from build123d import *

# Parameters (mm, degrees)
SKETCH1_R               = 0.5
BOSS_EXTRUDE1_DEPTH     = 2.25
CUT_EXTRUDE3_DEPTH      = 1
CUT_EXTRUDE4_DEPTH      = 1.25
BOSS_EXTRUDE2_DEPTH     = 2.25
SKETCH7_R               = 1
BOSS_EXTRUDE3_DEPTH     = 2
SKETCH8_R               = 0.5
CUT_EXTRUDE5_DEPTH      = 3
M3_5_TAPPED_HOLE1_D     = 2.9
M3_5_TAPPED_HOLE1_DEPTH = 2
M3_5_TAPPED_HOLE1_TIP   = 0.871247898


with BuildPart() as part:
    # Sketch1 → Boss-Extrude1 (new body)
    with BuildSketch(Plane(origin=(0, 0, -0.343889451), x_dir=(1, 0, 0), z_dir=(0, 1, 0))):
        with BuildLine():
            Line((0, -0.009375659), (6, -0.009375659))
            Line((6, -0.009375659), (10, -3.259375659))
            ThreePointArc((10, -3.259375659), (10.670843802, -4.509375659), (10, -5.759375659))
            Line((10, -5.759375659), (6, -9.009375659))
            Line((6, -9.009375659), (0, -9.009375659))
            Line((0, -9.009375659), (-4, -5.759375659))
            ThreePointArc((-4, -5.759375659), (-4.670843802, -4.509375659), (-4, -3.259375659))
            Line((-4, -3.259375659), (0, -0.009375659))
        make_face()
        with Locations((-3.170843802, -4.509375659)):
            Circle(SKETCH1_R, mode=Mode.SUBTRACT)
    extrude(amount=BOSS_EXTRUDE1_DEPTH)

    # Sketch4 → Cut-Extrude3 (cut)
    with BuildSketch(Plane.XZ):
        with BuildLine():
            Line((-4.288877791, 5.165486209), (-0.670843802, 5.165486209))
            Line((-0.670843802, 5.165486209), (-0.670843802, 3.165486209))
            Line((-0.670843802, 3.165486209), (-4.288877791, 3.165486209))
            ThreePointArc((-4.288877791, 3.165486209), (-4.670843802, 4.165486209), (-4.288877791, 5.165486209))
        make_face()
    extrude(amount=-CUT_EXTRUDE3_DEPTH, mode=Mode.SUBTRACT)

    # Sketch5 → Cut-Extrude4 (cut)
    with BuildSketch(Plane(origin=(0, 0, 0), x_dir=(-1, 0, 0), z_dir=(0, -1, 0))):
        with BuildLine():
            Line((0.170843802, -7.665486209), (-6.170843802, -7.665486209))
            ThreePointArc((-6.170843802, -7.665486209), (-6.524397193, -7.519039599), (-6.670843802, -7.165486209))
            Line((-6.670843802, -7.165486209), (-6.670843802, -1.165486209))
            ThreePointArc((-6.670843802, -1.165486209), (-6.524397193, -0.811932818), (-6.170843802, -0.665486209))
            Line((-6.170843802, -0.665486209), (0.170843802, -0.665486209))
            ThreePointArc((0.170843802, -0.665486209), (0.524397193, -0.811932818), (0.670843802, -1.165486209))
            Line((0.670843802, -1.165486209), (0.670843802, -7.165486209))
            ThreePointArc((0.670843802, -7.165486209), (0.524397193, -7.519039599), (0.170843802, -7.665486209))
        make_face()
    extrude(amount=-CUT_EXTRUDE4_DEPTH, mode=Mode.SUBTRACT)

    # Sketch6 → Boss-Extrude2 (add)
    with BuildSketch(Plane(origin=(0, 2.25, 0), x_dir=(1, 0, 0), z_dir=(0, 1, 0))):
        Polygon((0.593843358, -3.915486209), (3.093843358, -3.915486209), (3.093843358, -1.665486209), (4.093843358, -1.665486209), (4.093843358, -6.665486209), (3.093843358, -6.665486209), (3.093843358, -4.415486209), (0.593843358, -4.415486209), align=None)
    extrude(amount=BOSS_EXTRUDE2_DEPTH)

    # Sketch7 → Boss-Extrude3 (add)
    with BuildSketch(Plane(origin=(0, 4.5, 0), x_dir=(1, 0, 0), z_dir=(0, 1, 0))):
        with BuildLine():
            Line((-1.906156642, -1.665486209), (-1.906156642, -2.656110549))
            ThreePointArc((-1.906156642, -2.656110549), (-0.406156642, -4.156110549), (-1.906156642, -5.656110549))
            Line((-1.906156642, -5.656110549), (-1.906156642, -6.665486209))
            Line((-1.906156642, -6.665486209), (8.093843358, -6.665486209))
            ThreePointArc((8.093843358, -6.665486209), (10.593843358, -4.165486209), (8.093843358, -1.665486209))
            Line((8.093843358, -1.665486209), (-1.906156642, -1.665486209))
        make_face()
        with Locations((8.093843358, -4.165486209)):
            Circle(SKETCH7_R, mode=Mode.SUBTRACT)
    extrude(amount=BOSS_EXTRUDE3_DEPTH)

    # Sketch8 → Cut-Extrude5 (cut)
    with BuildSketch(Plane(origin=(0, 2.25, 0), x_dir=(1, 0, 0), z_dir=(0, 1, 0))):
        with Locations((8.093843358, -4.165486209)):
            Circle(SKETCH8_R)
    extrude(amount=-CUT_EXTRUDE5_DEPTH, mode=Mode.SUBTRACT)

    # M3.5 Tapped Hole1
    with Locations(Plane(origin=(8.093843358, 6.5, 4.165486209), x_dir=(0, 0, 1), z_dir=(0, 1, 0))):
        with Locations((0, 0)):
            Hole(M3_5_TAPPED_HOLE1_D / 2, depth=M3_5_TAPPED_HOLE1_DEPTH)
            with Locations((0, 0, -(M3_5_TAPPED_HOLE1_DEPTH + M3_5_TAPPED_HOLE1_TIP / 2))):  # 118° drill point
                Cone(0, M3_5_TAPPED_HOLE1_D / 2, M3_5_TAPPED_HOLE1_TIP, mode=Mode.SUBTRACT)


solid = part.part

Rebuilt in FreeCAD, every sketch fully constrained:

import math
import FreeCAD as App
import Part
import Sketcher
from FreeCAD import Vector
Q = App.Units.Quantity


def add_polygon(sketch, points):
    """Adds a closed chain of lines whose ends are joined by coincident constraints."""
    first, n = sketch.GeometryCount, len(points)
    for a, b in zip(points, points[1:] + points[:1]):
        sketch.addGeometry(Part.LineSegment(App.Vector(*a, 0), App.Vector(*b, 0)), False)
    for i in range(n):
        sketch.addConstraint(Sketcher.Constraint("Coincident", first + i, 2, first + (i + 1) % n, 1))

doc = App.newDocument("Part")
body = doc.addObject("PartDesign::Body", "Body")

# Sketch on XZ plane
sketch1 = body.newObject("Sketcher::SketchObject", "Sketch")
sketch1.AttachmentSupport = (doc.getObject("XZ_Plane"), [""])
sketch1.MapMode = "FlatFace"
sketch1.addGeometry([
    Part.LineSegment(Vector(6, -0.3, 0), Vector(0, -0.3, 0)),  # 0
    Part.LineSegment(Vector(0, -0.3, 0), Vector(-4, 2.9, 0)),  # 1
    Part.ArcOfCircle(Part.Circle(Vector(-3.2, 4.2, 0), Vector(0, 0, 1), 1.5), math.radians(124), math.radians(236)),  # 2
    Part.LineSegment(Vector(-4, 5.4, 0), Vector(0, 8.7, 0)),  # 3
    Part.LineSegment(Vector(0, 8.7, 0), Vector(6, 8.7, 0)),  # 4
    Part.LineSegment(Vector(6, 8.7, 0), Vector(10, 5.4, 0)),  # 5
    Part.ArcOfCircle(Part.Circle(Vector(9.2, 4.2, 0), Vector(0, 0, 1), 1.5), math.radians(-56), math.radians(56)),  # 6
    Part.LineSegment(Vector(10, 2.9, 0), Vector(6, -0.3, 0)),  # 7
    Part.Circle(Vector(-3.2, 4.2, 0), Vector(0, 0, 1), 0.5),  # 8
], False)
sketch1.addConstraint([
    Sketcher.Constraint("Coincident", 0, 2, 1, 1),
    Sketcher.Constraint("Coincident", 1, 2, 2, 2),
    Sketcher.Constraint("Coincident", 2, 1, 3, 1),
    Sketcher.Constraint("Coincident", 3, 2, 4, 1),
    Sketcher.Constraint("Coincident", 4, 2, 5, 1),
    Sketcher.Constraint("Coincident", 5, 2, 6, 2),
    Sketcher.Constraint("Coincident", 6, 1, 7, 1),
    Sketcher.Constraint("Coincident", 7, 2, 0, 1),
    Sketcher.Constraint("Horizontal", 0),
    Sketcher.Constraint("Horizontal", 4),
    Sketcher.Constraint("Coincident", 8, 3, 2, 3),
    Sketcher.Constraint("Equal", 2, 6),
    Sketcher.Constraint("PointOnObject", 0, 2, -2),
    Sketcher.Constraint("PointOnObject", 3, 2, -2),
    Sketcher.Constraint("Parallel", 1, 5),
    Sketcher.Constraint("Parallel", 3, 7),
    Sketcher.Constraint("Horizontal", 2, 3, 6, 3),
    Sketcher.Constraint("Horizontal", 2, 1, 5, 2),
    Sketcher.Constraint("Horizontal", 1, 2, 6, 1),
    Sketcher.Constraint("Vertical", 1, 2, 2, 1),
    Sketcher.Constraint("Vertical", 4, 2, 7, 2),
    Sketcher.Constraint("Diameter", 8, Q("1 mm")),
    Sketcher.Constraint("Radius", 2, Q("1.5 mm")),
    Sketcher.Constraint("DistanceX", 0, 2, 0, 1, Q("6 mm")),
    Sketcher.Constraint("DistanceX", 1, 2, -1, 1, Q("4 mm")),
    Sketcher.Constraint("DistanceY", 0, 2, 3, 2, Q("9 mm")),
    Sketcher.Constraint("DistanceY", 1, 2, 2, 1, Q("2.5 mm")),
    Sketcher.Constraint("DistanceY", -1, 1, 2, 3, Q("4.165486 mm")),
])
pad1 = body.newObject("PartDesign::Pad", "Pad")
pad1.Profile = sketch1
pad1.Length = 2.25
pad1.Reversed = True

# Sketch on XZ plane
sketch2 = body.newObject("Sketcher::SketchObject", "Sketch001")
sketch2.AttachmentSupport = (doc.getObject("XZ_Plane"), [""])
sketch2.MapMode = "FlatFace"
sketch2.addGeometry([
    Part.LineSegment(Vector(-0.7, 5.2, 0), Vector(-4.3, 5.2, 0)),
    Part.ArcOfCircle(Part.Circle(Vector(-3.2, 4.2, 0), Vector(0, 0, 1), 1.5), math.radians(138), math.radians(222)),
    Part.LineSegment(Vector(-4.3, 3.2, 0), Vector(-0.7, 3.2, 0)),
    Part.LineSegment(Vector(-0.7, 3.2, 0), Vector(-0.7, 5.2, 0)),
], False)
sketch2.addConstraint([
    Sketcher.Constraint("Coincident", 0, 2, 1, 1),
    Sketcher.Constraint("Coincident", 1, 2, 2, 1),
    Sketcher.Constraint("Coincident", 2, 2, 3, 1),
    Sketcher.Constraint("Coincident", 3, 2, 0, 1),
    Sketcher.Constraint("Horizontal", 0),
    Sketcher.Constraint("Horizontal", 2),
    Sketcher.Constraint("Vertical", 3),
    Sketcher.Constraint("Vertical", 0, 2, 1, 2),
    Sketcher.Constraint("Radius", 1, Q("1.5 mm")),
    Sketcher.Constraint("DistanceY", 3, 1, 3, 2, Q("2 mm")),
    Sketcher.Constraint("DistanceX", 1, 3, 2, 2, Q("2.5 mm")),
    Sketcher.Constraint("DistanceX", 1, 3, -1, 1, Q("3.170844 mm")),
    Sketcher.Constraint("DistanceY", -1, 1, 1, 3, Q("4.165486 mm")),
])
pocket1 = body.newObject("PartDesign::Pocket", "Pocket")
pocket1.Profile = sketch2
pocket1.Length = 1

# Sketch on XZ plane
sketch3 = body.newObject("Sketcher::SketchObject", "Sketch002")
sketch3.AttachmentSupport = (doc.getObject("XZ_Plane"), [""])
sketch3.MapMode = "FlatFace"
sketch3.addGeometry([
    Part.LineSegment(Vector(6.17, 7.67, 0), Vector(-0.17, 7.67, 0)),  # 0
    Part.ArcOfCircle(Part.Circle(Vector(-0.17, 7.17, 0), Vector(0, 0, 1), 0.5), math.radians(90), math.radians(180)),  # 1
    Part.LineSegment(Vector(-0.67, 7.17, 0), Vector(-0.67, 1.17, 0)),  # 2
    Part.ArcOfCircle(Part.Circle(Vector(-0.17, 1.17, 0), Vector(0, 0, 1), 0.5), math.radians(180), math.radians(270)),  # 3
    Part.LineSegment(Vector(-0.17, 0.67, 0), Vector(6.17, 0.67, 0)),  # 4
    Part.ArcOfCircle(Part.Circle(Vector(6.17, 1.17, 0), Vector(0, 0, 1), 0.5), math.radians(-90), math.radians(0)),  # 5
    Part.LineSegment(Vector(6.67, 1.17, 0), Vector(6.67, 7.17, 0)),  # 6
    Part.ArcOfCircle(Part.Circle(Vector(6.17, 7.17, 0), Vector(0, 0, 1), 0.5), math.radians(0), math.radians(90)),  # 7
], False)
sketch3.addConstraint([
    Sketcher.Constraint("Tangent", 0, 2, 1, 1),
    Sketcher.Constraint("Tangent", 1, 2, 2, 1),
    Sketcher.Constraint("Tangent", 2, 2, 3, 1),
    Sketcher.Constraint("Tangent", 3, 2, 4, 1),
    Sketcher.Constraint("Tangent", 4, 2, 5, 1),
    Sketcher.Constraint("Tangent", 5, 2, 6, 1),
    Sketcher.Constraint("Tangent", 6, 2, 7, 1),
    Sketcher.Constraint("Tangent", 7, 2, 0, 1),
    Sketcher.Constraint("Horizontal", 0),
    Sketcher.Constraint("Vertical", 2),
    Sketcher.Constraint("Horizontal", 4),
    Sketcher.Constraint("Vertical", 6),
    Sketcher.Constraint("Equal", 1, 3),
    Sketcher.Constraint("Equal", 3, 5),
    Sketcher.Constraint("Equal", 5, 7),
    Sketcher.Constraint("Radius", 1, Q("0.5 mm")),
    Sketcher.Constraint("DistanceY", 2, 2, 2, 1, Q("6 mm")),
    Sketcher.Constraint("DistanceX", 0, 2, 0, 1, Q("6.341688 mm")),
    Sketcher.Constraint("DistanceX", 1, 3, -1, 1, Q("0.170844 mm")),
    Sketcher.Constraint("DistanceY", -1, 1, 1, 3, Q("7.165486 mm")),
])
pocket2 = body.newObject("PartDesign::Pocket", "Pocket001")
pocket2.Profile = sketch3
pocket2.Length = 1.25

# Sketch on XZ plane
sketch4 = body.newObject("Sketcher::SketchObject", "Sketch003")
sketch4.AttachmentSupport = (doc.getObject("XZ_Plane"), [""])
sketch4.MapMode = "FlatFace"
sketch4.AttachmentOffset = App.Placement(Vector(0, 0, -2.25), App.Rotation())
add_polygon(sketch4, [(3.1, 3.9), (0.6, 3.9), (0.6, 4.4), (3.1, 4.4), (3.1, 6.7), (4.1, 6.7), (4.1, 1.7), (3.1, 1.7)])  # lines 0-7
sketch4.addConstraint([
    Sketcher.Constraint("Horizontal", 0),
    Sketcher.Constraint("Vertical", 1),
    Sketcher.Constraint("Horizontal", 2),
    Sketcher.Constraint("Vertical", 3),
    Sketcher.Constraint("Horizontal", 4),
    Sketcher.Constraint("Vertical", 5),
    Sketcher.Constraint("Horizontal", 6),
    Sketcher.Constraint("Vertical", 7),
    Sketcher.Constraint("Vertical", 3, 2, 6, 2),
    Sketcher.Constraint("Equal", 3, 7),
    Sketcher.Constraint("DistanceX", 4, 1, 4, 2, Q("1 mm")),
    Sketcher.Constraint("DistanceY", 5, 2, 5, 1, Q("5 mm")),
    Sketcher.Constraint("DistanceX", 0, 2, 0, 1, Q("2.5 mm")),
    Sketcher.Constraint("DistanceY", 1, 1, 1, 2, Q("0.5 mm")),
    Sketcher.Constraint("DistanceX", -1, 1, 0, 2, Q("0.593843 mm")),
    Sketcher.Constraint("DistanceY", -1, 1, 0, 2, Q("3.915486 mm")),
])
pad2 = body.newObject("PartDesign::Pad", "Pad001")
pad2.Profile = sketch4
pad2.Length = 2.25
pad2.Reversed = True

# Sketch on XZ plane
sketch5 = body.newObject("Sketcher::SketchObject", "Sketch004")
sketch5.AttachmentSupport = (doc.getObject("XZ_Plane"), [""])
sketch5.MapMode = "FlatFace"
sketch5.AttachmentOffset = App.Placement(Vector(0, 0, -4.5), App.Rotation())
sketch5.addGeometry([
    Part.LineSegment(Vector(-1.9, 1.7, 0), Vector(-1.9, 2.7, 0)),  # 0
    Part.ArcOfCircle(Part.Circle(Vector(-1.9, 4.2, 0), Vector(0, 0, 1), 1.5), math.radians(-90), math.radians(90)),  # 1
    Part.LineSegment(Vector(-1.9, 5.7, 0), Vector(-1.9, 6.7, 0)),  # 2
    Part.LineSegment(Vector(-1.9, 6.7, 0), Vector(8.1, 6.7, 0)),  # 3
    Part.ArcOfCircle(Part.Circle(Vector(8.1, 4.2, 0), Vector(0, 0, 1), 2.5), math.radians(-90), math.radians(90)),  # 4
    Part.LineSegment(Vector(8.1, 1.7, 0), Vector(-1.9, 1.7, 0)),  # 5
    Part.Circle(Vector(8.1, 4.2, 0), Vector(0, 0, 1), 1),  # 6
], False)
sketch5.addConstraint([
    Sketcher.Constraint("Coincident", 0, 2, 1, 1),
    Sketcher.Constraint("Coincident", 1, 2, 2, 1),
    Sketcher.Constraint("Coincident", 2, 2, 3, 1),
    Sketcher.Constraint("Tangent", 3, 2, 4, 2),
    Sketcher.Constraint("Tangent", 4, 1, 5, 1),
    Sketcher.Constraint("Coincident", 5, 2, 0, 1),
    Sketcher.Constraint("Vertical", 0),
    Sketcher.Constraint("Vertical", 2),
    Sketcher.Constraint("Horizontal", 3),
    Sketcher.Constraint("Horizontal", 5),
    Sketcher.Constraint("Coincident", 6, 3, 4, 3),
    Sketcher.Constraint("Vertical", 1, 3, 0, 2),
    Sketcher.Constraint("Vertical", 0, 2, 1, 2),
    Sketcher.Constraint("Diameter", 6, Q("2 mm")),
    Sketcher.Constraint("Radius", 1, Q("1.5 mm")),
    Sketcher.Constraint("Radius", 4, Q("2.5 mm")),
    Sketcher.Constraint("DistanceX", 3, 1, 3, 2, Q("10 mm")),
    Sketcher.Constraint("DistanceY", 0, 1, 0, 2, Q("0.990624 mm")),
    Sketcher.Constraint("DistanceY", -1, 1, 1, 3, Q("4.156111 mm")),
    Sketcher.Constraint("DistanceX", 1, 3, -1, 1, Q("1.906157 mm")),
])
pad3 = body.newObject("PartDesign::Pad", "Pad002")
pad3.Profile = sketch5
pad3.Length = 2
pad3.Reversed = True

# Sketch on XZ plane
sketch6 = body.newObject("Sketcher::SketchObject", "Sketch005")
sketch6.AttachmentSupport = (doc.getObject("XZ_Plane"), [""])
sketch6.MapMode = "FlatFace"
sketch6.AttachmentOffset = App.Placement(Vector(0, 0, -2.25), App.Rotation())
sketch6.addGeometry(Part.Circle(Vector(8.1, 4.2, 0), Vector(0, 0, 1), 0.5), False)
sketch6.addConstraint([
    Sketcher.Constraint("Diameter", 0, Q("1 mm")),
    Sketcher.Constraint("DistanceX", -1, 1, 0, 3, Q("8.093843 mm")),
    Sketcher.Constraint("DistanceY", -1, 1, 0, 3, Q("4.165486 mm")),
])
pocket3 = body.newObject("PartDesign::Pocket", "Pocket002")
pocket3.Profile = sketch6
pocket3.Length = 3
pocket3.Reversed = True

# Sketch on XZ plane
sketch7 = body.newObject("Sketcher::SketchObject", "Sketch006")
sketch7.AttachmentSupport = (doc.getObject("XZ_Plane"), [""])
sketch7.MapMode = "FlatFace"
sketch7.AttachmentOffset = App.Placement(Vector(0, 0, -6.5), App.Rotation())
sketch7.addGeometry(Part.Circle(Vector(8.1, 4.2, 0), Vector(0, 0, 1), 1.4), False)
sketch7.addConstraint([
    Sketcher.Constraint("Diameter", 0, Q("2.9 mm")),
    Sketcher.Constraint("DistanceX", -1, 1, 0, 3, Q("8.093843 mm")),
    Sketcher.Constraint("DistanceY", -1, 1, 0, 3, Q("4.165486 mm")),
])
doc.recompute()
hole = body.newObject("PartDesign::Hole", "Hole")
hole.Profile = sketch7
hole.ThreadType = "None"
hole.Diameter = 2.9
hole.DepthType = "Dimension"
hole.Depth = 2
hole.DrillPoint = "Angled"
hole.DrillPointAngle = 118
hole.Reversed = True

doc.recompute()
